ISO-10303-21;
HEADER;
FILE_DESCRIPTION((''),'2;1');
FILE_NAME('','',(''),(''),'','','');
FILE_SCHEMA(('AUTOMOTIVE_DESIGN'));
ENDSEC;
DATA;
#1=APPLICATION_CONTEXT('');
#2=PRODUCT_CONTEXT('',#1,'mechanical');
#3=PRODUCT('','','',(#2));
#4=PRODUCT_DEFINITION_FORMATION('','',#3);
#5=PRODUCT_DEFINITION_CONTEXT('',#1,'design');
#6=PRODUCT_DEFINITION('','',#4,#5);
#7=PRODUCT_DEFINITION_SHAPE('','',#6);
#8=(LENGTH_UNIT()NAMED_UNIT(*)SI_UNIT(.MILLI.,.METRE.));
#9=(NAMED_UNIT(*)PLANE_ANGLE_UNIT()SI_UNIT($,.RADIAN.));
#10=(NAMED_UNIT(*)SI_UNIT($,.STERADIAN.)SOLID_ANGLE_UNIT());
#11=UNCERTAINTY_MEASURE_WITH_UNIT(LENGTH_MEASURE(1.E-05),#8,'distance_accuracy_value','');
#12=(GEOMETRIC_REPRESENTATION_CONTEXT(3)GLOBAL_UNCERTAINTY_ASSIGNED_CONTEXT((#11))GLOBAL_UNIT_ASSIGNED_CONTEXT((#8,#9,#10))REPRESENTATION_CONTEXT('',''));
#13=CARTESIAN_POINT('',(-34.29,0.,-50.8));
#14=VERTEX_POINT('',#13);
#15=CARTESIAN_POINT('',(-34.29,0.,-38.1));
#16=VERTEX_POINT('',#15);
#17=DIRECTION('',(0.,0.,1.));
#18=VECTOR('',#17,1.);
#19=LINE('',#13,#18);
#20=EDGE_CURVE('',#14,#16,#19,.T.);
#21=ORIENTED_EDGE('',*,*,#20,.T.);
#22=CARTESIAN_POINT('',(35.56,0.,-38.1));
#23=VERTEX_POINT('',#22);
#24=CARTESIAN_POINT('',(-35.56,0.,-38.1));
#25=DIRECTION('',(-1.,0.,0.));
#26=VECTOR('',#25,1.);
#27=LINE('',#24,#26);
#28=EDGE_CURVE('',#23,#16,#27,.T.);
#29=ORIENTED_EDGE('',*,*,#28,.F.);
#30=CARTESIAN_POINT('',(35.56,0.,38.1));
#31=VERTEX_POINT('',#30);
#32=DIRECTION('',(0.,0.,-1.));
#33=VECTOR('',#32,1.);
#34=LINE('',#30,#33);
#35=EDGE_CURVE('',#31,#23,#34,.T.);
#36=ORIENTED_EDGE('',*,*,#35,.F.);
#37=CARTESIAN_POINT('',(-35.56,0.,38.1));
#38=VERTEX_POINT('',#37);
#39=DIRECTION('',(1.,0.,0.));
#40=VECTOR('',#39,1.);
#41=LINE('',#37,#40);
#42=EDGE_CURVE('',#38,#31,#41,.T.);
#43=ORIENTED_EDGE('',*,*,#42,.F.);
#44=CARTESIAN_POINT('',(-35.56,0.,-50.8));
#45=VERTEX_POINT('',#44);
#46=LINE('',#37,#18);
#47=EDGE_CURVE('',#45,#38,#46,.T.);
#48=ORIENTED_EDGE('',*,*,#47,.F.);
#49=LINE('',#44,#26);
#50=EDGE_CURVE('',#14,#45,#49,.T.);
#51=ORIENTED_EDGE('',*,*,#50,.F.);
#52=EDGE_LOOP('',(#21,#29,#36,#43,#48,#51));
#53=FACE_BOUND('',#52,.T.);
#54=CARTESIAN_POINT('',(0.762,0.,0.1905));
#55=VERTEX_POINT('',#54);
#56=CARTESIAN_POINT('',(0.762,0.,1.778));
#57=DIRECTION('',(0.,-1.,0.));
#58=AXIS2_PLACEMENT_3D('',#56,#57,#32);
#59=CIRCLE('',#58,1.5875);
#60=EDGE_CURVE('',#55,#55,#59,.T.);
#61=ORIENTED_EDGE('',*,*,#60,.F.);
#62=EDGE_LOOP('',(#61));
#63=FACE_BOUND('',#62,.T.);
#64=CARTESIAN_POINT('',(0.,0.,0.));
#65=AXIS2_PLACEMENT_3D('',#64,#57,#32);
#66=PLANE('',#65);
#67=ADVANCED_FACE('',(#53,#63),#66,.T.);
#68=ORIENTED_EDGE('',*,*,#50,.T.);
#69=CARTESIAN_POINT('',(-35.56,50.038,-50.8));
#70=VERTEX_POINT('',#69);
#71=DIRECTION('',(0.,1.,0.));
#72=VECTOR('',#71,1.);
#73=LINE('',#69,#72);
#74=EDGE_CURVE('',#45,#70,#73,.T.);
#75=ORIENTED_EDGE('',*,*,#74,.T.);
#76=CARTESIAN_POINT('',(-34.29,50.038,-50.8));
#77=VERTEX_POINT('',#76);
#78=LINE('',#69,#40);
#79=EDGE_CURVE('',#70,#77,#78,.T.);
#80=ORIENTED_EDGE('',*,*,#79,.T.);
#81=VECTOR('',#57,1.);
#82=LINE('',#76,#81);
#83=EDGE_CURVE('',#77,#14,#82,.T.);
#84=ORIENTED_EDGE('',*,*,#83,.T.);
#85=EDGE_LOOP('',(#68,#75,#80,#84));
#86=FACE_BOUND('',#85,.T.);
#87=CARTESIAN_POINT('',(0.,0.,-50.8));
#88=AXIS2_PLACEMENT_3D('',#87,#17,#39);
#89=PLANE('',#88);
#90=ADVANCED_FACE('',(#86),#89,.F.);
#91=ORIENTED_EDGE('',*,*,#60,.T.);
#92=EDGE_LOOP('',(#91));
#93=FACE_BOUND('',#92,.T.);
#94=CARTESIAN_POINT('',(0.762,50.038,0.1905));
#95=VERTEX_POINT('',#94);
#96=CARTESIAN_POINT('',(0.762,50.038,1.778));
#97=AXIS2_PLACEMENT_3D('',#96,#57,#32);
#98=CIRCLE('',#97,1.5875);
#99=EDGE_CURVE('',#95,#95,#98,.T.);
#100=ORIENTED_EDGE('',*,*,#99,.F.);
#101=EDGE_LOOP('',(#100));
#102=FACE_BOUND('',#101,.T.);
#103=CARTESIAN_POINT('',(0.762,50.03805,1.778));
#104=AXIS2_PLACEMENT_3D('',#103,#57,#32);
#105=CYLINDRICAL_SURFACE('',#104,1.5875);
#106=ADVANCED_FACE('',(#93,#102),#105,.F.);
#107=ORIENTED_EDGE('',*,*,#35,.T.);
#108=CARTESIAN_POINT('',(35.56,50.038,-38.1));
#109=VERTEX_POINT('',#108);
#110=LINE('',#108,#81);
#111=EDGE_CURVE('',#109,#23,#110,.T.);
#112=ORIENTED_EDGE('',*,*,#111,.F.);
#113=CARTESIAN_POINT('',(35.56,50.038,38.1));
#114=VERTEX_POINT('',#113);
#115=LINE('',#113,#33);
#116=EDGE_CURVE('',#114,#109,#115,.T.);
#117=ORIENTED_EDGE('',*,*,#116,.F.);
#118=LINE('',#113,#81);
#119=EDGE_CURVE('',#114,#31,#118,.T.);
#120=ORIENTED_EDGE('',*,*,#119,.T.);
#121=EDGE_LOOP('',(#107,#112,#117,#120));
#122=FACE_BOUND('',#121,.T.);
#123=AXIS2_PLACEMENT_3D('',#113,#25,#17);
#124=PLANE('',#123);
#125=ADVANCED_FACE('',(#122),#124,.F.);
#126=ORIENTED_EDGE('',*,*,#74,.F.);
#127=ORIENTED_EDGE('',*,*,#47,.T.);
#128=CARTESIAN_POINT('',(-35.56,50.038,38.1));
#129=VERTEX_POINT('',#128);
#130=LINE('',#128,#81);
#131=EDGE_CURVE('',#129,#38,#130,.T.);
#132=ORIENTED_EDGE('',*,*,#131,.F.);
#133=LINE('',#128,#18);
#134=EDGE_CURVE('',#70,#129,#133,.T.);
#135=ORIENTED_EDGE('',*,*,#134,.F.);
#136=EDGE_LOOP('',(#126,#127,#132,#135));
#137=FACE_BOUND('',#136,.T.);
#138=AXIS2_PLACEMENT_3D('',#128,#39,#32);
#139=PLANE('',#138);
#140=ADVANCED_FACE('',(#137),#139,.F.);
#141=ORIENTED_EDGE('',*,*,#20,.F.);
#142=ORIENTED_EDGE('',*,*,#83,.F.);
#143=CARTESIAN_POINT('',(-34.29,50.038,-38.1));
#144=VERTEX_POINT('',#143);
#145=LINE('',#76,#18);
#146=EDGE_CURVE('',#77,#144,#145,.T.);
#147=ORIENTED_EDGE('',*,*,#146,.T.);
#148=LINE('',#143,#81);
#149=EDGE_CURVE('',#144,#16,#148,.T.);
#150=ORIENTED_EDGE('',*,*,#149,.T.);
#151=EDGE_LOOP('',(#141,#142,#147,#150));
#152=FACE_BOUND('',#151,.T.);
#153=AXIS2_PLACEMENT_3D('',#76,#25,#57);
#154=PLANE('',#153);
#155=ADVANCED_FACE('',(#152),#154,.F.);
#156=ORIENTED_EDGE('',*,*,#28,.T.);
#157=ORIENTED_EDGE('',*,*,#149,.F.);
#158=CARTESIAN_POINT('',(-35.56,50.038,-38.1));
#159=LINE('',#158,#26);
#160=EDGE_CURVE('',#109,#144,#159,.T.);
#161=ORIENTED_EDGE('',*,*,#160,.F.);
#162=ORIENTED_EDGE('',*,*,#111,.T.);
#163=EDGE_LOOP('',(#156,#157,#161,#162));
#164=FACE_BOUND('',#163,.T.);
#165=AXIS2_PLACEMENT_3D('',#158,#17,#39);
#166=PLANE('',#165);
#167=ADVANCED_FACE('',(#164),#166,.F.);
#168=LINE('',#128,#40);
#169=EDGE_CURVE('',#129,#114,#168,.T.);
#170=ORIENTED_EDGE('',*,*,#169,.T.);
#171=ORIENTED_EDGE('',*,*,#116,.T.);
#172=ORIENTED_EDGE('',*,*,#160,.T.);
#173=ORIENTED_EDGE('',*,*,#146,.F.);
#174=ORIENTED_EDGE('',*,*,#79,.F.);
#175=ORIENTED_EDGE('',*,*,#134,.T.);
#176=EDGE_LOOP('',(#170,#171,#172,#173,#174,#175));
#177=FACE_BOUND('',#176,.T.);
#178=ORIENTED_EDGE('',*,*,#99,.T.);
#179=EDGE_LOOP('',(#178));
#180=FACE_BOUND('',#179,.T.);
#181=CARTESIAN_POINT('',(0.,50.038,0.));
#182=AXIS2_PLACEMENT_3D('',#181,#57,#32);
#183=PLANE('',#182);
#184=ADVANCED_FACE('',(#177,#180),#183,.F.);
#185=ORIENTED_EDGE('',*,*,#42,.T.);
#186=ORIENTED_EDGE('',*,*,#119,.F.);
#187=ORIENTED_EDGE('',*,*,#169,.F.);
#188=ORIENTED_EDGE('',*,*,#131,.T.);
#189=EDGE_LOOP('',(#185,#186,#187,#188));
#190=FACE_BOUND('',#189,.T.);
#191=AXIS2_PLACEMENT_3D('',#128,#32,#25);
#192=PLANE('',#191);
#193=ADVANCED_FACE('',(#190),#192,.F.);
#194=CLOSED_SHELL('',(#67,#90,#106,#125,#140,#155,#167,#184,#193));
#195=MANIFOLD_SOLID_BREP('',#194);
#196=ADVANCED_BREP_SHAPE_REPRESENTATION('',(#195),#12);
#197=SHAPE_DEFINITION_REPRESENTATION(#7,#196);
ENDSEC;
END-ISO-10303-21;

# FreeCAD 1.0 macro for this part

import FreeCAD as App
import Part
import Sketcher
Q = App.Units.Quantity

doc = App.newDocument("Part")
body = doc.addObject("PartDesign::Body", "Body")

# Sketch on XZ plane
sketch1 = body.newObject("Sketcher::SketchObject", "Sketch")
sketch1.AttachmentSupport = (doc.getObject("XZ_Plane"), [""])
sketch1.MapMode = "FlatFace"
sketch1.addGeometry([
    Part.LineSegment(App.Vector(-36, -38, 0), App.Vector(-36, 38, 0)),
    Part.LineSegment(App.Vector(-36, 38, 0), App.Vector(36, 38, 0)),
    Part.LineSegment(App.Vector(36, 38, 0), App.Vector(36, -38, 0)),
    Part.LineSegment(App.Vector(36, -38, 0), App.Vector(-36, -38, 0)),
], False)
sketch1.addConstraint([
    Sketcher.Constraint("Coincident", 0, 2, 1, 1),
    Sketcher.Constraint("Coincident", 1, 2, 2, 1),
    Sketcher.Constraint("Coincident", 2, 2, 3, 1),
    Sketcher.Constraint("Coincident", 3, 2, 0, 1),
    Sketcher.Constraint("Vertical", 0),
    Sketcher.Constraint("Horizontal", 1),
    Sketcher.Constraint("Vertical", 2),
    Sketcher.Constraint("Horizontal", 3),
    Sketcher.Constraint("Symmetric", 0, 2, 2, 2, -1, 1),
    Sketcher.Constraint("DistanceY", 0, 1, 0, 2, Q("3 in")),
    Sketcher.Constraint("DistanceX", 1, 1, 1, 2, Q("2.8 in")),
])
pad1 = body.newObject("PartDesign::Pad", "Pad")
pad1.Profile = sketch1
pad1.Length = Q("1.97 in")
pad1.Reversed = True

# Sketch on XY plane
sketch2 = body.newObject("Sketcher::SketchObject", "Sketch001")
sketch2.AttachmentSupport = (doc.getObject("XY_Plane"), [""])
sketch2.MapMode = "FlatFace"
sketch2.AttachmentOffset = App.Placement(App.Vector(0, 0, -1.5 * 25.4), App.Rotation())
sketch2.addGeometry([
    Part.LineSegment(App.Vector(-34.3, 50, 0), App.Vector(-34.3, 0, 0)),
    Part.LineSegment(App.Vector(-34.3, 0, 0), App.Vector(-35.6, 0, 0)),
    Part.LineSegment(App.Vector(-35.6, 0, 0), App.Vector(-35.6, 50, 0)),
    Part.LineSegment(App.Vector(-35.6, 50, 0), App.Vector(-34.3, 50, 0)),
], False)
sketch2.addConstraint([
    Sketcher.Constraint("Coincident", 0, 2, 1, 1),
    Sketcher.Constraint("Coincident", 1, 2, 2, 1),
    Sketcher.Constraint("Coincident", 2, 2, 3, 1),
    Sketcher.Constraint("Coincident", 3, 2, 0, 1),
    Sketcher.Constraint("Vertical", 0),
    Sketcher.Constraint("Horizontal", 1),
    Sketcher.Constraint("Vertical", 2),
    Sketcher.Constraint("Horizontal", 3),
    Sketcher.Constraint("PointOnObject", 0, 2, -1),
    Sketcher.Constraint("DistanceX", 1, 2, 1, 1, Q("0.05 in")),
    Sketcher.Constraint("DistanceY", 0, 2, 0, 1, Q("1.97 in")),
    Sketcher.Constraint("DistanceX", 1, 2, -1, 1, Q("1.4 in")),
])
pad2 = body.newObject("PartDesign::Pad", "Pad001")
pad2.Profile = sketch2
pad2.Length = Q("0.5 in")
pad2.Reversed = True

# Sketch on XZ plane
sketch3 = body.newObject("Sketcher::SketchObject", "Sketch002")
sketch3.AttachmentSupport = (doc.getObject("XZ_Plane"), [""])
sketch3.MapMode = "FlatFace"
sketch3.addGeometry(Part.Circle(App.Vector(0.8, 1.8, 0), App.Vector(0, 0, 1), 1.6), False)
sketch3.addConstraint([
    Sketcher.Constraint("Diameter", 0, Q("0.125 in")),
    Sketcher.Constraint("DistanceX", -1, 1, 0, 3, Q("0.03 in")),
    Sketcher.Constraint("DistanceY", -1, 1, 0, 3, Q("0.07 in")),
])
pocket1 = body.newObject("PartDesign::Pocket", "Pocket")
pocket1.Profile = sketch3
pocket1.Type = "ThroughAll"

doc.recompute()
